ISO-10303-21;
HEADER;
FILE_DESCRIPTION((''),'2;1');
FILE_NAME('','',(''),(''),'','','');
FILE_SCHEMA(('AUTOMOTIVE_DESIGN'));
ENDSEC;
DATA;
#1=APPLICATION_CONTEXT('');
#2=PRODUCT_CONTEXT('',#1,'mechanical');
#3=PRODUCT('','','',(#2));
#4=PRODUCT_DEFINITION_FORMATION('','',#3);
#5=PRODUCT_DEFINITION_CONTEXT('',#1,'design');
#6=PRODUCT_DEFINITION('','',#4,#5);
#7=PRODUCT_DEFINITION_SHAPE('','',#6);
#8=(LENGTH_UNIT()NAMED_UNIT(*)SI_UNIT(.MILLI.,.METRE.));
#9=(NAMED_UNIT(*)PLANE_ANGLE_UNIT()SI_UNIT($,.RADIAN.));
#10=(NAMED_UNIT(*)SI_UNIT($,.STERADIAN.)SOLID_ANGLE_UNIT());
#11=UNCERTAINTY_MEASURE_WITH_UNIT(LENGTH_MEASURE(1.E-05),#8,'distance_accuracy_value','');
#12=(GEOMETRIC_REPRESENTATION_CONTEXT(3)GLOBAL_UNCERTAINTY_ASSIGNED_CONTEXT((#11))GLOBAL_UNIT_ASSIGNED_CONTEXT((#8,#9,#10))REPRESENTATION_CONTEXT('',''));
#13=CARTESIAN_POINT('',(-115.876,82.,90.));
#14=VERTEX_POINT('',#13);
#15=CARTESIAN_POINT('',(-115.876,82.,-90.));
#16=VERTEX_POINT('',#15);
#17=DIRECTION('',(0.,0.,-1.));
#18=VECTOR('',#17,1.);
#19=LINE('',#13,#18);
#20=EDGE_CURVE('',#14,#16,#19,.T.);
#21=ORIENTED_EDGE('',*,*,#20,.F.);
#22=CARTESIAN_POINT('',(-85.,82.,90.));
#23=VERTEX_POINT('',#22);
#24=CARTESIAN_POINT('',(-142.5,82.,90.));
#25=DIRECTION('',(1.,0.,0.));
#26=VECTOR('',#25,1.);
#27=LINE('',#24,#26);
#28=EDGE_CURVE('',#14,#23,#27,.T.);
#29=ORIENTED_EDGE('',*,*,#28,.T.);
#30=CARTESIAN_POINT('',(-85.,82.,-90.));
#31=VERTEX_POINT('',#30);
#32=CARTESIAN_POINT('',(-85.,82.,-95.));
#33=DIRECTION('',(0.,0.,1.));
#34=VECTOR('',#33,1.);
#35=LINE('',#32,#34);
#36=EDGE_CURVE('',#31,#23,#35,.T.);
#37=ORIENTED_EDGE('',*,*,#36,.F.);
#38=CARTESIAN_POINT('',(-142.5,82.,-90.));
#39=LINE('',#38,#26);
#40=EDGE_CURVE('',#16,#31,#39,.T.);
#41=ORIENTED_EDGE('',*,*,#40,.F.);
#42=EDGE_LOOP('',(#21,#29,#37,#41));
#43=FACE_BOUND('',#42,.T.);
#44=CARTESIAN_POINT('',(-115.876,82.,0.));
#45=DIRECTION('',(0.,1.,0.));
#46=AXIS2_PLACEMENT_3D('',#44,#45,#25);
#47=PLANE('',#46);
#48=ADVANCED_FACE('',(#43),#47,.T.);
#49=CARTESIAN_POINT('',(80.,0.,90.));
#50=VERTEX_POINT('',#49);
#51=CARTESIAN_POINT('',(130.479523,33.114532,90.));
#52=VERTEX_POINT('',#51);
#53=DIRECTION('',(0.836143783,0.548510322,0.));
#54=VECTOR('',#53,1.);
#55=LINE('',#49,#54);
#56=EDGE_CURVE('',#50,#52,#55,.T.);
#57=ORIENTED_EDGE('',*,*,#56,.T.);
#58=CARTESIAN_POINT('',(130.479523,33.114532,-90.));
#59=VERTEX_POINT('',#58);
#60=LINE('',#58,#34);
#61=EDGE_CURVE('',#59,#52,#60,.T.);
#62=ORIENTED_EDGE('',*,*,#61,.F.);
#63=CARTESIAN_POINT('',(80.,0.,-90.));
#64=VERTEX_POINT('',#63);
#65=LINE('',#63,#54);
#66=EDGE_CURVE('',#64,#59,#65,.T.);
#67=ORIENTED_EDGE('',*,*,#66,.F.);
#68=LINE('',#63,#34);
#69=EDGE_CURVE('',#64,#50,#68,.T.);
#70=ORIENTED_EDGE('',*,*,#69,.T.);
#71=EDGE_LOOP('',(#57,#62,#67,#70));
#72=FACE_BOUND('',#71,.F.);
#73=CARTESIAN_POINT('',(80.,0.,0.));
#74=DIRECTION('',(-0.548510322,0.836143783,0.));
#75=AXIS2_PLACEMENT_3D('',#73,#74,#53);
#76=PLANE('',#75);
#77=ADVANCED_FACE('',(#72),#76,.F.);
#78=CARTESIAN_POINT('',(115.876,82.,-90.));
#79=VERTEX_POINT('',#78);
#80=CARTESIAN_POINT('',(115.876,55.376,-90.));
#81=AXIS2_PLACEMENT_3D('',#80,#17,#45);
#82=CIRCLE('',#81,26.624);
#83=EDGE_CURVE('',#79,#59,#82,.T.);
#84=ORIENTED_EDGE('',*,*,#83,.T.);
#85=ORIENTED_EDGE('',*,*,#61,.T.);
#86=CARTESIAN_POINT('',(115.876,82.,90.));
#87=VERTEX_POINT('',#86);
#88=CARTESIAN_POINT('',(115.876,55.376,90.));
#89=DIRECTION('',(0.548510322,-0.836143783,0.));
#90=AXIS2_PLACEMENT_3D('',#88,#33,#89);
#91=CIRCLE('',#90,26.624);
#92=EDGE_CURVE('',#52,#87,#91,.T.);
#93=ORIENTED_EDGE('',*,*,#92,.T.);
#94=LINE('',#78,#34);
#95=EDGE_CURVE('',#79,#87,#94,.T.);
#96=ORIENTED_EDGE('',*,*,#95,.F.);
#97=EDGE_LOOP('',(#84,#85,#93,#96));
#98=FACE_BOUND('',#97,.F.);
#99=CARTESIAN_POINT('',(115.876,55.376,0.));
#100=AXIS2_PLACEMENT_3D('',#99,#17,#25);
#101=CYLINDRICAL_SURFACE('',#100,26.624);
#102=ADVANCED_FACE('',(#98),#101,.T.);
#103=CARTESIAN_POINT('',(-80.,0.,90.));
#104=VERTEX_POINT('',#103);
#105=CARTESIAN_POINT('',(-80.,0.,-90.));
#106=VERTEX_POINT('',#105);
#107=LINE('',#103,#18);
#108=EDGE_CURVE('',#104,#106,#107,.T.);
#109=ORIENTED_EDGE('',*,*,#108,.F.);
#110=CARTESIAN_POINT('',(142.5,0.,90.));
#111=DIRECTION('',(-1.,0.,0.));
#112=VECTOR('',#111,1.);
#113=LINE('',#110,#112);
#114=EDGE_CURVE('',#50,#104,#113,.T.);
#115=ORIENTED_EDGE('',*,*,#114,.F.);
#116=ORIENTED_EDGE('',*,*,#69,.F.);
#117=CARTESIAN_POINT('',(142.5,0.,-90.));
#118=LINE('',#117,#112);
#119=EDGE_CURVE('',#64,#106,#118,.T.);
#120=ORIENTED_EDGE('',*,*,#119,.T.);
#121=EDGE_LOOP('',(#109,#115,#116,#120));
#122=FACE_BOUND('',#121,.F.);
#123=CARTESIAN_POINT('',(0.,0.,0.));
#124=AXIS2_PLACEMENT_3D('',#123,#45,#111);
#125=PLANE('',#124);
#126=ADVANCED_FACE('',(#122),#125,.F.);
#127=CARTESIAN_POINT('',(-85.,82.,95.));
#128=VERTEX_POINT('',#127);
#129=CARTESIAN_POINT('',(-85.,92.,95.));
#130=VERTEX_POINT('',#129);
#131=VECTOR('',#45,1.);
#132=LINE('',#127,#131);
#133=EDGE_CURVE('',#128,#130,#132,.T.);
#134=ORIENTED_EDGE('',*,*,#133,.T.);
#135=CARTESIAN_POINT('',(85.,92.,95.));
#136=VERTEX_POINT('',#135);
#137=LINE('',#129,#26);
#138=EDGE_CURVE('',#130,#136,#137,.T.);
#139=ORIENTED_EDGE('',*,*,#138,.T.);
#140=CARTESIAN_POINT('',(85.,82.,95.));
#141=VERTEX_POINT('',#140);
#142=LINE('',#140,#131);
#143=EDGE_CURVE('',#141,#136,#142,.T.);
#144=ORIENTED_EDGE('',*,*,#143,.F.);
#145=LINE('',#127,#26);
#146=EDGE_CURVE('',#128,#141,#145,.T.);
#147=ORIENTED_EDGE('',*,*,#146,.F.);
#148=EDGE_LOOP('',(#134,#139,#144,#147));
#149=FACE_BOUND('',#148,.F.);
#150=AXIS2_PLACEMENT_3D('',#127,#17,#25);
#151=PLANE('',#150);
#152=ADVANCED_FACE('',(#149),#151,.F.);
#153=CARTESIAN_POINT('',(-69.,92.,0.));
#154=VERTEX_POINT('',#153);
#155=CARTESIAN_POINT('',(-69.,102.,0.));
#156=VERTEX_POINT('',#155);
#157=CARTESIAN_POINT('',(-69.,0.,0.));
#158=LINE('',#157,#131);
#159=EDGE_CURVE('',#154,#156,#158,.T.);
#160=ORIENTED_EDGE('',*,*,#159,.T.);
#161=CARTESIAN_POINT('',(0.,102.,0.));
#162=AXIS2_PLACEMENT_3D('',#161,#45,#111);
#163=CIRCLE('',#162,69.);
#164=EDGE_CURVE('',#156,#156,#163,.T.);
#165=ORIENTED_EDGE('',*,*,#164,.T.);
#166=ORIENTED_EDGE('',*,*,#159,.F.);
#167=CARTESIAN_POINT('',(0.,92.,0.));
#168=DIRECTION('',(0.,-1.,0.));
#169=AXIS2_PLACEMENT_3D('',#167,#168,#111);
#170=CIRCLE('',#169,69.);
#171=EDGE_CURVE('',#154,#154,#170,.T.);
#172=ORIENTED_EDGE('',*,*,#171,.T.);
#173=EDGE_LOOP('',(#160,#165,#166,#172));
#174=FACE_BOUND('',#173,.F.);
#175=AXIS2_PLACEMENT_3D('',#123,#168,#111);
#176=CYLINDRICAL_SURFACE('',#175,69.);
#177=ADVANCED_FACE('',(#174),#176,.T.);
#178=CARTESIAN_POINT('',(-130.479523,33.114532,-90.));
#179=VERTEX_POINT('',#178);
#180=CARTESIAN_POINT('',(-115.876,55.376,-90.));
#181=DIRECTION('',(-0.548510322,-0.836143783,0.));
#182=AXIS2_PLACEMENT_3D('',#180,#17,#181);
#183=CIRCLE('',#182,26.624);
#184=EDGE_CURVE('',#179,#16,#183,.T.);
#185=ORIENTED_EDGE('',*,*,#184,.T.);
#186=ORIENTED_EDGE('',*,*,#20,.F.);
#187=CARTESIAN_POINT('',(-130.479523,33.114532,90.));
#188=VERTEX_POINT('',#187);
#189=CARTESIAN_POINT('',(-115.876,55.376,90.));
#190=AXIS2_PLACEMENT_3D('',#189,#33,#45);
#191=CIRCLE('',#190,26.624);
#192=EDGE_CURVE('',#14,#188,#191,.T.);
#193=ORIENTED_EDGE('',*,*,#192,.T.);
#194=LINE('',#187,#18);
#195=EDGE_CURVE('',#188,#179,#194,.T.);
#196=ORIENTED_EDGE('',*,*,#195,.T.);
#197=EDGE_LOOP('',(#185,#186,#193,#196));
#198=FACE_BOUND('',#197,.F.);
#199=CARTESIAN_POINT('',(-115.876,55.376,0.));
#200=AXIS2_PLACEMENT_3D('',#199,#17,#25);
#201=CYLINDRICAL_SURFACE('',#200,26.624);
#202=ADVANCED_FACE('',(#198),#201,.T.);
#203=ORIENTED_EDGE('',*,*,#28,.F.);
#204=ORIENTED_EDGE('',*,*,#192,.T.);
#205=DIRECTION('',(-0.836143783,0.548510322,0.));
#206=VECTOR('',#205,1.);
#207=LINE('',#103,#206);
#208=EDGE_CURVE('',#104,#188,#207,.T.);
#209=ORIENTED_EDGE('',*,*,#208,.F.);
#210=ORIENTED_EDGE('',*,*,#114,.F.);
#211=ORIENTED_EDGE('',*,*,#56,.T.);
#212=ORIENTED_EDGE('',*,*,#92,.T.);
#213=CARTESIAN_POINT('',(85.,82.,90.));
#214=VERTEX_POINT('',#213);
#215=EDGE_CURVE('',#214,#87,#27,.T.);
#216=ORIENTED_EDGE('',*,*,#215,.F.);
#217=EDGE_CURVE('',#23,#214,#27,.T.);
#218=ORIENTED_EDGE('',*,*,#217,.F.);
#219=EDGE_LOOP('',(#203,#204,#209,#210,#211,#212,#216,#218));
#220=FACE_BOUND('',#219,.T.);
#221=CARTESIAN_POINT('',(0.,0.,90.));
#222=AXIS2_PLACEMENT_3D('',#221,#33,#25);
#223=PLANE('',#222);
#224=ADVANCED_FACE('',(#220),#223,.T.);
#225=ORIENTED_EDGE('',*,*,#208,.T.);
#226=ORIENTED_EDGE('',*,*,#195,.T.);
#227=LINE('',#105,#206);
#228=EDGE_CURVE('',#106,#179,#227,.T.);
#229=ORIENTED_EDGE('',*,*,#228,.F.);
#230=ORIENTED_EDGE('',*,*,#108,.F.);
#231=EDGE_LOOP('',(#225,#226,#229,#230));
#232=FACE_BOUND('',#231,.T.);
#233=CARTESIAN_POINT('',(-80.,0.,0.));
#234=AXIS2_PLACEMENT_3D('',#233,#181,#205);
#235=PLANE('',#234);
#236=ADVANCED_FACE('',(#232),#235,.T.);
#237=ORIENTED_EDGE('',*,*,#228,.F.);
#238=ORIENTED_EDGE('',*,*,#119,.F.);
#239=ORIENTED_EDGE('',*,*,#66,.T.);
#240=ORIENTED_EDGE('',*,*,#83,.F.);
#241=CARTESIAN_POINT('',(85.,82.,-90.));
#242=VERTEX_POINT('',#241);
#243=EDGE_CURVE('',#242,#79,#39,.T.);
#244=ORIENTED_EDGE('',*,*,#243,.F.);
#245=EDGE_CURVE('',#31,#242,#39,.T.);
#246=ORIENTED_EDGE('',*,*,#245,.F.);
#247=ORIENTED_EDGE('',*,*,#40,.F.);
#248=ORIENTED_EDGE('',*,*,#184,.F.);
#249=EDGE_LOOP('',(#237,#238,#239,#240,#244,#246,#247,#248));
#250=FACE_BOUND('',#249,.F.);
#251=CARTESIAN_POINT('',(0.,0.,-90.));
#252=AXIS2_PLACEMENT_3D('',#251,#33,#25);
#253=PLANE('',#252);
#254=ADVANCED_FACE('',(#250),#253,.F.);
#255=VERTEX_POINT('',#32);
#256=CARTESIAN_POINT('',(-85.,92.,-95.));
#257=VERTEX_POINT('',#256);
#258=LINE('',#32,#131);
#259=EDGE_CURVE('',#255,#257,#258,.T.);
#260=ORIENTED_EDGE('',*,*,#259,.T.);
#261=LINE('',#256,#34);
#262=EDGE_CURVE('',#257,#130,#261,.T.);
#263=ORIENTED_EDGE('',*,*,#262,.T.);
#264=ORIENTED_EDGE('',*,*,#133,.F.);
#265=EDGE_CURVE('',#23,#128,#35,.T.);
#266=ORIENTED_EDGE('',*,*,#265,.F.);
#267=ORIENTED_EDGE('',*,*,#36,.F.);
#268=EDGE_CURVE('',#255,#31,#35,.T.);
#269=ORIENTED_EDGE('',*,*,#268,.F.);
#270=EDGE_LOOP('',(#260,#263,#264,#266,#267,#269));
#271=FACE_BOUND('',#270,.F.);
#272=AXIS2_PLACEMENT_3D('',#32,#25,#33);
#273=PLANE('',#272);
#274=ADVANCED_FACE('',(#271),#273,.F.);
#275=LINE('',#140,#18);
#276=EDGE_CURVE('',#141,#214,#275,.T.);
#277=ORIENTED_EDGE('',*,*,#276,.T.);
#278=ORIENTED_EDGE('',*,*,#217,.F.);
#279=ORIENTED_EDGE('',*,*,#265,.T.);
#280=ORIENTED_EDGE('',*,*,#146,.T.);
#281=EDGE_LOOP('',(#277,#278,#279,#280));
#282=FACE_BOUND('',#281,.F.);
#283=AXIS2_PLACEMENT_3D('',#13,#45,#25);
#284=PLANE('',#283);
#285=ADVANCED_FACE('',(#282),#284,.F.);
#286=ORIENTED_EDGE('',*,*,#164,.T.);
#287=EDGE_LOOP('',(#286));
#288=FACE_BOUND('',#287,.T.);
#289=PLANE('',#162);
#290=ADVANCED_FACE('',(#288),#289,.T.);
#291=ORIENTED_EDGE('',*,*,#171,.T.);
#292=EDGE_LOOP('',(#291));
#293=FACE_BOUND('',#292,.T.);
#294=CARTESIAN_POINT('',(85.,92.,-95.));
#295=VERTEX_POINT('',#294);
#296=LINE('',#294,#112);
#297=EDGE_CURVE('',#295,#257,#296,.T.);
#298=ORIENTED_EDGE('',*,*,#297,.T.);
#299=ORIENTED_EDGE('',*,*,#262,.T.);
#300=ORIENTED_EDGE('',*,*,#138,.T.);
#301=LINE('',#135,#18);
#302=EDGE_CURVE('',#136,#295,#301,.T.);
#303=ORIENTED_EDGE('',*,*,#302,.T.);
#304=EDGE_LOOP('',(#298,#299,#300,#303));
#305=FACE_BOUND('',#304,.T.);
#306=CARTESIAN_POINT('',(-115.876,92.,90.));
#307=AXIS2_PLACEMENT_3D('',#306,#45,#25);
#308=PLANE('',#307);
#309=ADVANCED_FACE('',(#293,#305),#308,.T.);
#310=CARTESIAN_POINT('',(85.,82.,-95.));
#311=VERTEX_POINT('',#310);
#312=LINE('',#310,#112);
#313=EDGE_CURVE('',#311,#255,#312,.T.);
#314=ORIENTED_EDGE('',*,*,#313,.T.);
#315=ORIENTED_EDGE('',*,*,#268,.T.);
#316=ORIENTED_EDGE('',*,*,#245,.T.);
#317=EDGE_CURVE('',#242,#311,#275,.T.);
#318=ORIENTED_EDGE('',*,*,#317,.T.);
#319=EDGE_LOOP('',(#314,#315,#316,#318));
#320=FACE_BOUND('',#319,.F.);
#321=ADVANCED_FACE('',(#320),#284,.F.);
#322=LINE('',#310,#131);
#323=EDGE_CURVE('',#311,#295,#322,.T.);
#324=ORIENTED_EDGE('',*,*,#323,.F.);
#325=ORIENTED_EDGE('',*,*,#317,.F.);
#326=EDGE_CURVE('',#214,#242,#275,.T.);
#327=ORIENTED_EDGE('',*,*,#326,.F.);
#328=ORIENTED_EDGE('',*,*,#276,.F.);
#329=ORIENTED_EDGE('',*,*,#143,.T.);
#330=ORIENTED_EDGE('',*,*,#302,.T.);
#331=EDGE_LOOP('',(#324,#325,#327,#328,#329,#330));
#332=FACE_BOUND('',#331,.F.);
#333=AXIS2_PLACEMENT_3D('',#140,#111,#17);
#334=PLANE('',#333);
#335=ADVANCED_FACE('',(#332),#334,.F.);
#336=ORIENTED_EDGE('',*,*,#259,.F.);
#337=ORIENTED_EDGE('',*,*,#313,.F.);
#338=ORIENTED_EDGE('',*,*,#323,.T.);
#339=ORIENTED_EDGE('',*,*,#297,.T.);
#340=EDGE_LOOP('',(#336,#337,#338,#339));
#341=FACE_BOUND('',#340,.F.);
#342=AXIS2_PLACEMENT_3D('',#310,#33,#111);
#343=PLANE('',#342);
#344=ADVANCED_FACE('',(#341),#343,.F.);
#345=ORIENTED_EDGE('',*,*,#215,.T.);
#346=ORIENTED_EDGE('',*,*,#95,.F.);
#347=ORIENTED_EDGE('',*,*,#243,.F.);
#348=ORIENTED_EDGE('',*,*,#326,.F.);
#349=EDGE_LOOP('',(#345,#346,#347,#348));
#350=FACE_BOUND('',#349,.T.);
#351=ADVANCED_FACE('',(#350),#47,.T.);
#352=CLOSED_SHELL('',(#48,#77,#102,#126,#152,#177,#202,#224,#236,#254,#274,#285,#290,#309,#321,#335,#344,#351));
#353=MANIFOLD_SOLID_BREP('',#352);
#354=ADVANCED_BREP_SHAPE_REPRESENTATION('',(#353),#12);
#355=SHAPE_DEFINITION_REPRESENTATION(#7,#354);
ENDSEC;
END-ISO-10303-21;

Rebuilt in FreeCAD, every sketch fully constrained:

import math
import FreeCAD as App
import Part
import Sketcher

doc = App.newDocument("Part")
body = doc.addObject("PartDesign::Body", "Body")

# Sketch on XY plane
sketch1 = doc.addObject("Sketcher::SketchObject", "Sketch")
body.addObject(sketch1)
sketch1.AttachmentSupport = (doc.XY_Plane, [""])
sketch1.MapMode = "FlatFace"
sketch1.addGeometry([
    Part.LineSegment(App.Vector(-80, 0, 0), App.Vector(80, 0, 0)),  # 0
    Part.LineSegment(App.Vector(80, 0, 0), App.Vector(130, 33, 0)),  # 1
    Part.ArcOfCircle(Part.Circle(App.Vector(116, 55, 0), App.Vector(0, 0, 1), 27), math.radians(-57), math.radians(90)),  # 2
    Part.LineSegment(App.Vector(116, 82, 0), App.Vector(-116, 82, 0)),  # 3
    Part.ArcOfCircle(Part.Circle(App.Vector(-116, 55, 0), App.Vector(0, 0, 1), 27), math.radians(90), math.radians(237)),  # 4
    Part.LineSegment(App.Vector(-130, 33, 0), App.Vector(-80, 0, 0)),  # 5
], False)
sketch1.addConstraint([
    Sketcher.Constraint("Coincident", 0, 2, 1, 1),
    Sketcher.Constraint("Tangent", 1, 2, 2, 1),
    Sketcher.Constraint("Tangent", 2, 2, 3, 1),
    Sketcher.Constraint("Tangent", 3, 2, 4, 1),
    Sketcher.Constraint("Tangent", 4, 2, 5, 1),
    Sketcher.Constraint("Coincident", 5, 2, 0, 1),
    Sketcher.Constraint("Horizontal", 0),
    Sketcher.Constraint("Horizontal", 3),
    Sketcher.Constraint("Equal", 2, 4),
    Sketcher.Constraint("Symmetric", 0, 2, 5, 2, -1, 1),
    Sketcher.Constraint("Horizontal", 1, 2, 4, 2),
    Sketcher.Constraint("DistanceX", -1, 1, 0, 2, 80.0),
    Sketcher.Constraint("DistanceY", -1, 1, 2, 2, 82.0),
    Sketcher.Constraint("Radius", 2, 26.624),
    Sketcher.Constraint("DistanceX", 3, 2, 3, 1, 231.752),
])
pad1 = doc.addObject("PartDesign::Pad", "Pad")
body.addObject(pad1)
pad1.Profile = sketch1
pad1.Length = 180
pad1.Midplane = True

# Sketch on XZ plane
sketch2 = doc.addObject("Sketcher::SketchObject", "Sketch001")
body.addObject(sketch2)
sketch2.AttachmentSupport = (doc.XZ_Plane, [""])
sketch2.MapMode = "FlatFace"
sketch2.AttachmentOffset = App.Placement(App.Vector(0, 0, -82), App.Rotation())
sketch2.addGeometry([
    Part.LineSegment(App.Vector(-85, -95, 0), App.Vector(-85, 95, 0)),
    Part.LineSegment(App.Vector(-85, 95, 0), App.Vector(85, 95, 0)),
    Part.LineSegment(App.Vector(85, 95, 0), App.Vector(85, -95, 0)),
    Part.LineSegment(App.Vector(85, -95, 0), App.Vector(-85, -95, 0)),
], False)
sketch2.addConstraint([
    Sketcher.Constraint("Coincident", 0, 2, 1, 1),
    Sketcher.Constraint("Coincident", 1, 2, 2, 1),
    Sketcher.Constraint("Coincident", 2, 2, 3, 1),
    Sketcher.Constraint("Coincident", 3, 2, 0, 1),
    Sketcher.Constraint("Vertical", 0),
    Sketcher.Constraint("Horizontal", 1),
    Sketcher.Constraint("Vertical", 2),
    Sketcher.Constraint("Horizontal", 3),
    Sketcher.Constraint("Symmetric", 0, 2, 2, 2, -1, 1),
    Sketcher.Constraint("DistanceX", 1, 1, 1, 2, 170.0),
    Sketcher.Constraint("DistanceY", 0, 1, 0, 2, 190.0),
])
pad2 = doc.addObject("PartDesign::Pad", "Pad001")
body.addObject(pad2)
pad2.Profile = sketch2
pad2.Length = 10
pad2.Reversed = True

# Sketch on XZ plane
sketch3 = doc.addObject("Sketcher::SketchObject", "Sketch002")
body.addObject(sketch3)
sketch3.AttachmentSupport = (doc.XZ_Plane, [""])
sketch3.MapMode = "FlatFace"
sketch3.addGeometry(Part.Circle(App.Vector(0, 0, 0), App.Vector(0, 0, 1), 69), False)
sketch3.addConstraint([
    Sketcher.Constraint("Coincident", 0, 3, -1, 1),
    Sketcher.Constraint("Diameter", 0, 138.0),
])
pad3 = doc.addObject("PartDesign::Pad", "Pad002")
body.addObject(pad3)
pad3.Profile = sketch3
pad3.Length = 102
pad3.Reversed = True

doc.recompute()
